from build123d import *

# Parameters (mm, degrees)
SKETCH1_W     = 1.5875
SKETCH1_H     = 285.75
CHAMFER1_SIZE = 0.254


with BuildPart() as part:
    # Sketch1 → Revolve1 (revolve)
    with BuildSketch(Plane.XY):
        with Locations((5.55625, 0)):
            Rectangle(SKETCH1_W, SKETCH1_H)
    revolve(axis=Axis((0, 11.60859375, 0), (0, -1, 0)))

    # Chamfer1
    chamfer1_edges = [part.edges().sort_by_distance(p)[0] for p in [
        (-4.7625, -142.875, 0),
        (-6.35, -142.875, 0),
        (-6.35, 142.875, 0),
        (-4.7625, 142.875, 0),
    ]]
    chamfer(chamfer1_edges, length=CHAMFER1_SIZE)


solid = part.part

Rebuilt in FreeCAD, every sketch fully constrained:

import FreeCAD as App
import Part
import Sketcher
from FreeCAD import Vector
Q = App.Units.Quantity


def edges_at(feature, points):
    """Names of the edges that pass closest to the given points."""
    edges = feature.Shape.Edges
    near = lambda p: min(range(len(edges)), key=lambda i: edges[i].distToShape(Part.Vertex(*p))[0])
    return sorted({f"Edge{near(p) + 1}" for p in points})

doc = App.newDocument("Part")
body = doc.addObject("PartDesign::Body", "Body")

# Sketch on XY plane
sketch1 = body.newObject("Sketcher::SketchObject", "Sketch")
sketch1.AttachmentSupport = (doc.getObject("XY_Plane"), [""])
sketch1.MapMode = "FlatFace"
sketch1.addGeometry(Part.LineSegment(Vector(4.8, 142.9, 0), Vector(4.8, -142.9, 0)), False)
sketch1.addGeometry(Part.LineSegment(Vector(4.8, -142.9, 0), Vector(6.3, -142.9, 0)), False)
sketch1.addGeometry(Part.LineSegment(Vector(6.3, -142.9, 0), Vector(6.3, 142.9, 0)), False)
sketch1.addGeometry(Part.LineSegment(Vector(6.3, 142.9, 0), Vector(4.8, 142.9, 0)), False)
sketch1.addConstraint(Sketcher.Constraint("Coincident", 0, 2, 1, 1))
sketch1.addConstraint(Sketcher.Constraint("Coincident", 1, 2, 2, 1))
sketch1.addConstraint(Sketcher.Constraint("Coincident", 2, 2, 3, 1))
sketch1.addConstraint(Sketcher.Constraint("Coincident", 3, 2, 0, 1))
sketch1.addConstraint(Sketcher.Constraint("Vertical", 0))
sketch1.addConstraint(Sketcher.Constraint("Horizontal", 1))
sketch1.addConstraint(Sketcher.Constraint("Vertical", 2))
sketch1.addConstraint(Sketcher.Constraint("Horizontal", 3))
sketch1.addConstraint(Sketcher.Constraint("DistanceY", 0, 2, 0, 1, Q("11.25 in")))
sketch1.addConstraint(Sketcher.Constraint("DistanceX", 1, 1, 1, 2, Q("0.0625 in")))
sketch1.addConstraint(Sketcher.Constraint("DistanceX", -1, 1, 1, 2, Q("0.25 in")))
sketch1.addConstraint(Sketcher.Constraint("DistanceY", 0, 2, -1, 1, Q("5.625 in")))
revolution = body.newObject("PartDesign::Revolution", "Revolution")
revolution.Profile = sketch1
revolution.ReferenceAxis = (sketch1, ["V_Axis"])
revolution.Angle = 360
doc.recompute()

chamfer = body.newObject("PartDesign::Chamfer", "Chamfer")
chamfer.Base = (revolution, edges_at(revolution, [
    (-4.763, -142.875, 0),
    (-6.35, -142.875, 0),
    (-6.35, 142.875, 0),
    (-4.763, 142.875, 0),
]))
chamfer.Size = Q("0.01 in")

doc.recompute()
